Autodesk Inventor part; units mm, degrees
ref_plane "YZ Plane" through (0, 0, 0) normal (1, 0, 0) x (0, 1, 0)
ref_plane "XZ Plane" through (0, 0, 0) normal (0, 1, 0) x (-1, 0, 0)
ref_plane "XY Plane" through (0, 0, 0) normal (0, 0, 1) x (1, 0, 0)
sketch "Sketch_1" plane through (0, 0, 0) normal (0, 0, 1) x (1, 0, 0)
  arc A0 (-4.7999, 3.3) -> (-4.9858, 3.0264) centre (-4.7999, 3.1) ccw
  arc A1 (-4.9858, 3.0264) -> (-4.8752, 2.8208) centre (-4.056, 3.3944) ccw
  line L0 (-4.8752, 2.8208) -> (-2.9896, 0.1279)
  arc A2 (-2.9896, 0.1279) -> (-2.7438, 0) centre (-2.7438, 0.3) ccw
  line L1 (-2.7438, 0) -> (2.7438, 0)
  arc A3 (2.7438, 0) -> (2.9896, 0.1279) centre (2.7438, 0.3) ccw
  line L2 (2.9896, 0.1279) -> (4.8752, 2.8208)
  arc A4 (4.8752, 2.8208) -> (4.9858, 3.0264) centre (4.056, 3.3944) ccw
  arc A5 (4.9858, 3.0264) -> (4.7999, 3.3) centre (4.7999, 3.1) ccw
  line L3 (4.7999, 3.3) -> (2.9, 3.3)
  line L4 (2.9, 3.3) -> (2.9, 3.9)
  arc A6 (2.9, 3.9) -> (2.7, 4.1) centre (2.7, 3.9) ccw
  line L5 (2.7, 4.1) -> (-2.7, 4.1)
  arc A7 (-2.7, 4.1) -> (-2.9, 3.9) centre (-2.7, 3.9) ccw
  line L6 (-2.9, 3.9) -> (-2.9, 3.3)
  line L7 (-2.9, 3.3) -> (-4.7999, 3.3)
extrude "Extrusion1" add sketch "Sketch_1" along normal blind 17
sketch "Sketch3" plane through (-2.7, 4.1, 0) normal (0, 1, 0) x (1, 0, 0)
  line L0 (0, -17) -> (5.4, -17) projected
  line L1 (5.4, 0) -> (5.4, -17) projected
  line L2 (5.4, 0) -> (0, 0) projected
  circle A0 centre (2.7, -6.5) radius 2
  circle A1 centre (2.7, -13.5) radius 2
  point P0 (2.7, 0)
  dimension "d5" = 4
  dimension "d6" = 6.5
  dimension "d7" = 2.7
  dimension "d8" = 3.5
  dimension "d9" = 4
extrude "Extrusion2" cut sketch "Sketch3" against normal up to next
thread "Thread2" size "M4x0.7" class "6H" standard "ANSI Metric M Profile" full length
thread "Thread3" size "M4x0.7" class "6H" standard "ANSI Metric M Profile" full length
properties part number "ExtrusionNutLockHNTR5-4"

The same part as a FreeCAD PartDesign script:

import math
import FreeCAD as App
import Part
import Sketcher
from FreeCAD import Vector
Q = App.Units.Quantity

doc = App.newDocument("Part")
body = doc.addObject("PartDesign::Body", "Body")

sketch1 = body.newObject("Sketcher::SketchObject", "Sketch")
sketch1.AttachmentSupport = (doc.getObject("XY_Plane"), [""])
sketch1.MapMode = "FlatFace"
sketch1.addGeometry(Part.LineSegment(Vector(-2.9, 3.3, 0), Vector(-4.7999, 3.3, 0)), False)
sketch1.addGeometry(Part.ArcOfCircle(Part.Circle(Vector(-4.7999, 3.1, 0), Vector(0, 0, 1), 0.2), math.radians(90), math.radians(201.599196)), False)
sketch1.addGeometry(Part.ArcOfCircle(Part.Circle(Vector(-4.050871, 3.396786, 0), Vector(0, 0, 1), 1.005623), math.radians(-158.388288), math.radians(-145.056742)), False)
sketch1.addGeometry(Part.LineSegment(Vector(-4.8752, 2.8208, 0), Vector(-2.9896, 0.1279, 0)), False)
sketch1.addGeometry(Part.ArcOfCircle(Part.Circle(Vector(-2.7438, 0.3, 0), Vector(0, 0, 1), 0.30006), math.radians(-145.001723), math.radians(-90)), False)
sketch1.addGeometry(Part.LineSegment(Vector(-2.7438, 0, 0), Vector(2.7438, 0, 0)), False)
sketch1.addGeometry(Part.ArcOfCircle(Part.Circle(Vector(2.7438, 0.3, 0), Vector(0, 0, 1), 0.3), math.radians(-90), math.radians(-34.998277)), False)
sketch1.addGeometry(Part.LineSegment(Vector(2.9896, 0.1279, 0), Vector(4.8752, 2.8208, 0)), False)
sketch1.addGeometry(Part.ArcOfCircle(Part.Circle(Vector(4.060762, 3.391465, 0), Vector(0, 0, 1), 0.994468), math.radians(-35.018373), math.radians(-21.536597)), False)
sketch1.addGeometry(Part.ArcOfCircle(Part.Circle(Vector(4.7999, 3.1, 0), Vector(0, 0, 1), 0.199939), math.radians(-21.599196), math.radians(90)), False)
sketch1.addGeometry(Part.LineSegment(Vector(4.7999, 3.3, 0), Vector(2.9, 3.3, 0)), False)
sketch1.addGeometry(Part.LineSegment(Vector(2.9, 3.3, 0), Vector(2.9, 3.9, 0)), False)
sketch1.addGeometry(Part.ArcOfCircle(Part.Circle(Vector(2.7, 3.9, 0), Vector(0, 0, 1), 0.2), math.radians(0), math.radians(90)), False)
sketch1.addGeometry(Part.LineSegment(Vector(2.7, 4.1, 0), Vector(-2.7, 4.1, 0)), False)
sketch1.addGeometry(Part.ArcOfCircle(Part.Circle(Vector(-2.7, 3.9, 0), Vector(0, 0, 1), 0.2), math.radians(90), math.radians(180)), False)
sketch1.addGeometry(Part.LineSegment(Vector(-2.9, 3.9, 0), Vector(-2.9, 3.3, 0)), False)
sketch1.addConstraint(Sketcher.Constraint("Tangent", 0, 2, 1, 1))
sketch1.addConstraint(Sketcher.Constraint("Tangent", 1, 2, 2, 1))
sketch1.addConstraint(Sketcher.Constraint("Coincident", 2, 2, 3, 1))
sketch1.addConstraint(Sketcher.Constraint("Tangent", 3, 2, 4, 1))
sketch1.addConstraint(Sketcher.Constraint("Tangent", 4, 2, 5, 1))
sketch1.addConstraint(Sketcher.Constraint("Tangent", 5, 2, 6, 1))
sketch1.addConstraint(Sketcher.Constraint("Tangent", 6, 2, 7, 1))
sketch1.addConstraint(Sketcher.Constraint("Tangent", 7, 2, 8, 1))
sketch1.addConstraint(Sketcher.Constraint("Coincident", 8, 2, 9, 1))
sketch1.addConstraint(Sketcher.Constraint("Tangent", 9, 2, 10, 1))
sketch1.addConstraint(Sketcher.Constraint("Coincident", 10, 2, 11, 1))
sketch1.addConstraint(Sketcher.Constraint("Tangent", 11, 2, 12, 1))
sketch1.addConstraint(Sketcher.Constraint("Tangent", 12, 2, 13, 1))
sketch1.addConstraint(Sketcher.Constraint("Tangent", 13, 2, 14, 1))
sketch1.addConstraint(Sketcher.Constraint("Tangent", 14, 2, 15, 1))
sketch1.addConstraint(Sketcher.Constraint("Coincident", 15, 2, 0, 1))
sketch1.addConstraint(Sketcher.Constraint("Horizontal", 0))
sketch1.addConstraint(Sketcher.Constraint("Horizontal", 5))
sketch1.addConstraint(Sketcher.Constraint("Horizontal", 10))
sketch1.addConstraint(Sketcher.Constraint("Vertical", 11))
sketch1.addConstraint(Sketcher.Constraint("Horizontal", 13))
sketch1.addConstraint(Sketcher.Constraint("Vertical", 15))
sketch1.addConstraint(Sketcher.Constraint("Equal", 4, 6))
sketch1.addConstraint(Sketcher.Constraint("Equal", 1, 9))
sketch1.addConstraint(Sketcher.Constraint("Equal", 9, 12))
sketch1.addConstraint(Sketcher.Constraint("Equal", 12, 14))
sketch1.addConstraint(Sketcher.Constraint("Symmetric", 4, 2, 5, 2, -1, 1))
sketch1.addConstraint(Sketcher.Constraint("Symmetric", 1, 3, 9, 3, -2))
sketch1.addConstraint(Sketcher.Constraint("Symmetric", 2, 2, 7, 2, -2))
sketch1.addConstraint(Sketcher.Constraint("Horizontal", 1, 2, 8, 2))
sketch1.addConstraint(Sketcher.Constraint("Equal", 0, 10))
sketch1.addConstraint(Sketcher.Constraint("Radius", 1, Q("0.2 mm")))
sketch1.addConstraint(Sketcher.Constraint("Radius", 4, Q("0.3 mm")))
sketch1.addConstraint(Sketcher.Constraint("Angle", 3, Q("-54.9998 deg")))
sketch1.addConstraint(Sketcher.Constraint("DistanceX", 0, 2, 0, 1, Q("1.9 mm")))
sketch1.addConstraint(Sketcher.Constraint("DistanceX", 13, 2, 13, 1, Q("5.4 mm")))
sketch1.addConstraint(Sketcher.Constraint("DistanceY", 11, 1, 11, 2, Q("0.6 mm")))
sketch1.addConstraint(Sketcher.Constraint("DistanceY", 4, 3, 0, 2, Q("3 mm")))
sketch1.addConstraint(Sketcher.Constraint("Radius", 2, Q("1.0056 mm")))
sketch1.addConstraint(Sketcher.Constraint("Radius", 8, Q("0.9945 mm")))
sketch1.addConstraint(Sketcher.Constraint("DistanceX", 5, 1, 5, 2, Q("5.4876 mm")))
pad1 = body.newObject("PartDesign::Pad", "Pad")
pad1.Profile = sketch1
pad1.Length = 17

sketch2 = body.newObject("Sketcher::SketchObject", "Sketch001")
sketch2.AttachmentSupport = (doc.getObject("XZ_Plane"), [""])
sketch2.MapMode = "FlatFace"
sketch2.AttachmentOffset = App.Placement(Vector(0, 0, -4.1), App.Rotation())
sketch2.addGeometry(Part.Circle(Vector(0, 6.5, 0), Vector(0, 0, 1), 2), False)
sketch2.addGeometry(Part.Circle(Vector(0, 13.5, 0), Vector(0, 0, 1), 2), False)
sketch2.addConstraint(Sketcher.Constraint("Equal", 0, 1))
sketch2.addConstraint(Sketcher.Constraint("PointOnObject", 0, 3, -2))
sketch2.addConstraint(Sketcher.Constraint("PointOnObject", 1, 3, -2))
sketch2.addConstraint(Sketcher.Constraint("Diameter", 0, Q("4 mm")))
sketch2.addConstraint(Sketcher.Constraint("DistanceY", -1, 1, 0, 3, Q("6.5 mm")))
sketch2.addConstraint(Sketcher.Constraint("DistanceY", 0, 3, 1, 3, Q("7 mm")))
pocket1 = body.newObject("PartDesign::Pocket", "Pocket")
pocket1.Profile = sketch2
pocket1.Type = "UpToFirst"
pocket1.Reversed = True

doc.recompute()
